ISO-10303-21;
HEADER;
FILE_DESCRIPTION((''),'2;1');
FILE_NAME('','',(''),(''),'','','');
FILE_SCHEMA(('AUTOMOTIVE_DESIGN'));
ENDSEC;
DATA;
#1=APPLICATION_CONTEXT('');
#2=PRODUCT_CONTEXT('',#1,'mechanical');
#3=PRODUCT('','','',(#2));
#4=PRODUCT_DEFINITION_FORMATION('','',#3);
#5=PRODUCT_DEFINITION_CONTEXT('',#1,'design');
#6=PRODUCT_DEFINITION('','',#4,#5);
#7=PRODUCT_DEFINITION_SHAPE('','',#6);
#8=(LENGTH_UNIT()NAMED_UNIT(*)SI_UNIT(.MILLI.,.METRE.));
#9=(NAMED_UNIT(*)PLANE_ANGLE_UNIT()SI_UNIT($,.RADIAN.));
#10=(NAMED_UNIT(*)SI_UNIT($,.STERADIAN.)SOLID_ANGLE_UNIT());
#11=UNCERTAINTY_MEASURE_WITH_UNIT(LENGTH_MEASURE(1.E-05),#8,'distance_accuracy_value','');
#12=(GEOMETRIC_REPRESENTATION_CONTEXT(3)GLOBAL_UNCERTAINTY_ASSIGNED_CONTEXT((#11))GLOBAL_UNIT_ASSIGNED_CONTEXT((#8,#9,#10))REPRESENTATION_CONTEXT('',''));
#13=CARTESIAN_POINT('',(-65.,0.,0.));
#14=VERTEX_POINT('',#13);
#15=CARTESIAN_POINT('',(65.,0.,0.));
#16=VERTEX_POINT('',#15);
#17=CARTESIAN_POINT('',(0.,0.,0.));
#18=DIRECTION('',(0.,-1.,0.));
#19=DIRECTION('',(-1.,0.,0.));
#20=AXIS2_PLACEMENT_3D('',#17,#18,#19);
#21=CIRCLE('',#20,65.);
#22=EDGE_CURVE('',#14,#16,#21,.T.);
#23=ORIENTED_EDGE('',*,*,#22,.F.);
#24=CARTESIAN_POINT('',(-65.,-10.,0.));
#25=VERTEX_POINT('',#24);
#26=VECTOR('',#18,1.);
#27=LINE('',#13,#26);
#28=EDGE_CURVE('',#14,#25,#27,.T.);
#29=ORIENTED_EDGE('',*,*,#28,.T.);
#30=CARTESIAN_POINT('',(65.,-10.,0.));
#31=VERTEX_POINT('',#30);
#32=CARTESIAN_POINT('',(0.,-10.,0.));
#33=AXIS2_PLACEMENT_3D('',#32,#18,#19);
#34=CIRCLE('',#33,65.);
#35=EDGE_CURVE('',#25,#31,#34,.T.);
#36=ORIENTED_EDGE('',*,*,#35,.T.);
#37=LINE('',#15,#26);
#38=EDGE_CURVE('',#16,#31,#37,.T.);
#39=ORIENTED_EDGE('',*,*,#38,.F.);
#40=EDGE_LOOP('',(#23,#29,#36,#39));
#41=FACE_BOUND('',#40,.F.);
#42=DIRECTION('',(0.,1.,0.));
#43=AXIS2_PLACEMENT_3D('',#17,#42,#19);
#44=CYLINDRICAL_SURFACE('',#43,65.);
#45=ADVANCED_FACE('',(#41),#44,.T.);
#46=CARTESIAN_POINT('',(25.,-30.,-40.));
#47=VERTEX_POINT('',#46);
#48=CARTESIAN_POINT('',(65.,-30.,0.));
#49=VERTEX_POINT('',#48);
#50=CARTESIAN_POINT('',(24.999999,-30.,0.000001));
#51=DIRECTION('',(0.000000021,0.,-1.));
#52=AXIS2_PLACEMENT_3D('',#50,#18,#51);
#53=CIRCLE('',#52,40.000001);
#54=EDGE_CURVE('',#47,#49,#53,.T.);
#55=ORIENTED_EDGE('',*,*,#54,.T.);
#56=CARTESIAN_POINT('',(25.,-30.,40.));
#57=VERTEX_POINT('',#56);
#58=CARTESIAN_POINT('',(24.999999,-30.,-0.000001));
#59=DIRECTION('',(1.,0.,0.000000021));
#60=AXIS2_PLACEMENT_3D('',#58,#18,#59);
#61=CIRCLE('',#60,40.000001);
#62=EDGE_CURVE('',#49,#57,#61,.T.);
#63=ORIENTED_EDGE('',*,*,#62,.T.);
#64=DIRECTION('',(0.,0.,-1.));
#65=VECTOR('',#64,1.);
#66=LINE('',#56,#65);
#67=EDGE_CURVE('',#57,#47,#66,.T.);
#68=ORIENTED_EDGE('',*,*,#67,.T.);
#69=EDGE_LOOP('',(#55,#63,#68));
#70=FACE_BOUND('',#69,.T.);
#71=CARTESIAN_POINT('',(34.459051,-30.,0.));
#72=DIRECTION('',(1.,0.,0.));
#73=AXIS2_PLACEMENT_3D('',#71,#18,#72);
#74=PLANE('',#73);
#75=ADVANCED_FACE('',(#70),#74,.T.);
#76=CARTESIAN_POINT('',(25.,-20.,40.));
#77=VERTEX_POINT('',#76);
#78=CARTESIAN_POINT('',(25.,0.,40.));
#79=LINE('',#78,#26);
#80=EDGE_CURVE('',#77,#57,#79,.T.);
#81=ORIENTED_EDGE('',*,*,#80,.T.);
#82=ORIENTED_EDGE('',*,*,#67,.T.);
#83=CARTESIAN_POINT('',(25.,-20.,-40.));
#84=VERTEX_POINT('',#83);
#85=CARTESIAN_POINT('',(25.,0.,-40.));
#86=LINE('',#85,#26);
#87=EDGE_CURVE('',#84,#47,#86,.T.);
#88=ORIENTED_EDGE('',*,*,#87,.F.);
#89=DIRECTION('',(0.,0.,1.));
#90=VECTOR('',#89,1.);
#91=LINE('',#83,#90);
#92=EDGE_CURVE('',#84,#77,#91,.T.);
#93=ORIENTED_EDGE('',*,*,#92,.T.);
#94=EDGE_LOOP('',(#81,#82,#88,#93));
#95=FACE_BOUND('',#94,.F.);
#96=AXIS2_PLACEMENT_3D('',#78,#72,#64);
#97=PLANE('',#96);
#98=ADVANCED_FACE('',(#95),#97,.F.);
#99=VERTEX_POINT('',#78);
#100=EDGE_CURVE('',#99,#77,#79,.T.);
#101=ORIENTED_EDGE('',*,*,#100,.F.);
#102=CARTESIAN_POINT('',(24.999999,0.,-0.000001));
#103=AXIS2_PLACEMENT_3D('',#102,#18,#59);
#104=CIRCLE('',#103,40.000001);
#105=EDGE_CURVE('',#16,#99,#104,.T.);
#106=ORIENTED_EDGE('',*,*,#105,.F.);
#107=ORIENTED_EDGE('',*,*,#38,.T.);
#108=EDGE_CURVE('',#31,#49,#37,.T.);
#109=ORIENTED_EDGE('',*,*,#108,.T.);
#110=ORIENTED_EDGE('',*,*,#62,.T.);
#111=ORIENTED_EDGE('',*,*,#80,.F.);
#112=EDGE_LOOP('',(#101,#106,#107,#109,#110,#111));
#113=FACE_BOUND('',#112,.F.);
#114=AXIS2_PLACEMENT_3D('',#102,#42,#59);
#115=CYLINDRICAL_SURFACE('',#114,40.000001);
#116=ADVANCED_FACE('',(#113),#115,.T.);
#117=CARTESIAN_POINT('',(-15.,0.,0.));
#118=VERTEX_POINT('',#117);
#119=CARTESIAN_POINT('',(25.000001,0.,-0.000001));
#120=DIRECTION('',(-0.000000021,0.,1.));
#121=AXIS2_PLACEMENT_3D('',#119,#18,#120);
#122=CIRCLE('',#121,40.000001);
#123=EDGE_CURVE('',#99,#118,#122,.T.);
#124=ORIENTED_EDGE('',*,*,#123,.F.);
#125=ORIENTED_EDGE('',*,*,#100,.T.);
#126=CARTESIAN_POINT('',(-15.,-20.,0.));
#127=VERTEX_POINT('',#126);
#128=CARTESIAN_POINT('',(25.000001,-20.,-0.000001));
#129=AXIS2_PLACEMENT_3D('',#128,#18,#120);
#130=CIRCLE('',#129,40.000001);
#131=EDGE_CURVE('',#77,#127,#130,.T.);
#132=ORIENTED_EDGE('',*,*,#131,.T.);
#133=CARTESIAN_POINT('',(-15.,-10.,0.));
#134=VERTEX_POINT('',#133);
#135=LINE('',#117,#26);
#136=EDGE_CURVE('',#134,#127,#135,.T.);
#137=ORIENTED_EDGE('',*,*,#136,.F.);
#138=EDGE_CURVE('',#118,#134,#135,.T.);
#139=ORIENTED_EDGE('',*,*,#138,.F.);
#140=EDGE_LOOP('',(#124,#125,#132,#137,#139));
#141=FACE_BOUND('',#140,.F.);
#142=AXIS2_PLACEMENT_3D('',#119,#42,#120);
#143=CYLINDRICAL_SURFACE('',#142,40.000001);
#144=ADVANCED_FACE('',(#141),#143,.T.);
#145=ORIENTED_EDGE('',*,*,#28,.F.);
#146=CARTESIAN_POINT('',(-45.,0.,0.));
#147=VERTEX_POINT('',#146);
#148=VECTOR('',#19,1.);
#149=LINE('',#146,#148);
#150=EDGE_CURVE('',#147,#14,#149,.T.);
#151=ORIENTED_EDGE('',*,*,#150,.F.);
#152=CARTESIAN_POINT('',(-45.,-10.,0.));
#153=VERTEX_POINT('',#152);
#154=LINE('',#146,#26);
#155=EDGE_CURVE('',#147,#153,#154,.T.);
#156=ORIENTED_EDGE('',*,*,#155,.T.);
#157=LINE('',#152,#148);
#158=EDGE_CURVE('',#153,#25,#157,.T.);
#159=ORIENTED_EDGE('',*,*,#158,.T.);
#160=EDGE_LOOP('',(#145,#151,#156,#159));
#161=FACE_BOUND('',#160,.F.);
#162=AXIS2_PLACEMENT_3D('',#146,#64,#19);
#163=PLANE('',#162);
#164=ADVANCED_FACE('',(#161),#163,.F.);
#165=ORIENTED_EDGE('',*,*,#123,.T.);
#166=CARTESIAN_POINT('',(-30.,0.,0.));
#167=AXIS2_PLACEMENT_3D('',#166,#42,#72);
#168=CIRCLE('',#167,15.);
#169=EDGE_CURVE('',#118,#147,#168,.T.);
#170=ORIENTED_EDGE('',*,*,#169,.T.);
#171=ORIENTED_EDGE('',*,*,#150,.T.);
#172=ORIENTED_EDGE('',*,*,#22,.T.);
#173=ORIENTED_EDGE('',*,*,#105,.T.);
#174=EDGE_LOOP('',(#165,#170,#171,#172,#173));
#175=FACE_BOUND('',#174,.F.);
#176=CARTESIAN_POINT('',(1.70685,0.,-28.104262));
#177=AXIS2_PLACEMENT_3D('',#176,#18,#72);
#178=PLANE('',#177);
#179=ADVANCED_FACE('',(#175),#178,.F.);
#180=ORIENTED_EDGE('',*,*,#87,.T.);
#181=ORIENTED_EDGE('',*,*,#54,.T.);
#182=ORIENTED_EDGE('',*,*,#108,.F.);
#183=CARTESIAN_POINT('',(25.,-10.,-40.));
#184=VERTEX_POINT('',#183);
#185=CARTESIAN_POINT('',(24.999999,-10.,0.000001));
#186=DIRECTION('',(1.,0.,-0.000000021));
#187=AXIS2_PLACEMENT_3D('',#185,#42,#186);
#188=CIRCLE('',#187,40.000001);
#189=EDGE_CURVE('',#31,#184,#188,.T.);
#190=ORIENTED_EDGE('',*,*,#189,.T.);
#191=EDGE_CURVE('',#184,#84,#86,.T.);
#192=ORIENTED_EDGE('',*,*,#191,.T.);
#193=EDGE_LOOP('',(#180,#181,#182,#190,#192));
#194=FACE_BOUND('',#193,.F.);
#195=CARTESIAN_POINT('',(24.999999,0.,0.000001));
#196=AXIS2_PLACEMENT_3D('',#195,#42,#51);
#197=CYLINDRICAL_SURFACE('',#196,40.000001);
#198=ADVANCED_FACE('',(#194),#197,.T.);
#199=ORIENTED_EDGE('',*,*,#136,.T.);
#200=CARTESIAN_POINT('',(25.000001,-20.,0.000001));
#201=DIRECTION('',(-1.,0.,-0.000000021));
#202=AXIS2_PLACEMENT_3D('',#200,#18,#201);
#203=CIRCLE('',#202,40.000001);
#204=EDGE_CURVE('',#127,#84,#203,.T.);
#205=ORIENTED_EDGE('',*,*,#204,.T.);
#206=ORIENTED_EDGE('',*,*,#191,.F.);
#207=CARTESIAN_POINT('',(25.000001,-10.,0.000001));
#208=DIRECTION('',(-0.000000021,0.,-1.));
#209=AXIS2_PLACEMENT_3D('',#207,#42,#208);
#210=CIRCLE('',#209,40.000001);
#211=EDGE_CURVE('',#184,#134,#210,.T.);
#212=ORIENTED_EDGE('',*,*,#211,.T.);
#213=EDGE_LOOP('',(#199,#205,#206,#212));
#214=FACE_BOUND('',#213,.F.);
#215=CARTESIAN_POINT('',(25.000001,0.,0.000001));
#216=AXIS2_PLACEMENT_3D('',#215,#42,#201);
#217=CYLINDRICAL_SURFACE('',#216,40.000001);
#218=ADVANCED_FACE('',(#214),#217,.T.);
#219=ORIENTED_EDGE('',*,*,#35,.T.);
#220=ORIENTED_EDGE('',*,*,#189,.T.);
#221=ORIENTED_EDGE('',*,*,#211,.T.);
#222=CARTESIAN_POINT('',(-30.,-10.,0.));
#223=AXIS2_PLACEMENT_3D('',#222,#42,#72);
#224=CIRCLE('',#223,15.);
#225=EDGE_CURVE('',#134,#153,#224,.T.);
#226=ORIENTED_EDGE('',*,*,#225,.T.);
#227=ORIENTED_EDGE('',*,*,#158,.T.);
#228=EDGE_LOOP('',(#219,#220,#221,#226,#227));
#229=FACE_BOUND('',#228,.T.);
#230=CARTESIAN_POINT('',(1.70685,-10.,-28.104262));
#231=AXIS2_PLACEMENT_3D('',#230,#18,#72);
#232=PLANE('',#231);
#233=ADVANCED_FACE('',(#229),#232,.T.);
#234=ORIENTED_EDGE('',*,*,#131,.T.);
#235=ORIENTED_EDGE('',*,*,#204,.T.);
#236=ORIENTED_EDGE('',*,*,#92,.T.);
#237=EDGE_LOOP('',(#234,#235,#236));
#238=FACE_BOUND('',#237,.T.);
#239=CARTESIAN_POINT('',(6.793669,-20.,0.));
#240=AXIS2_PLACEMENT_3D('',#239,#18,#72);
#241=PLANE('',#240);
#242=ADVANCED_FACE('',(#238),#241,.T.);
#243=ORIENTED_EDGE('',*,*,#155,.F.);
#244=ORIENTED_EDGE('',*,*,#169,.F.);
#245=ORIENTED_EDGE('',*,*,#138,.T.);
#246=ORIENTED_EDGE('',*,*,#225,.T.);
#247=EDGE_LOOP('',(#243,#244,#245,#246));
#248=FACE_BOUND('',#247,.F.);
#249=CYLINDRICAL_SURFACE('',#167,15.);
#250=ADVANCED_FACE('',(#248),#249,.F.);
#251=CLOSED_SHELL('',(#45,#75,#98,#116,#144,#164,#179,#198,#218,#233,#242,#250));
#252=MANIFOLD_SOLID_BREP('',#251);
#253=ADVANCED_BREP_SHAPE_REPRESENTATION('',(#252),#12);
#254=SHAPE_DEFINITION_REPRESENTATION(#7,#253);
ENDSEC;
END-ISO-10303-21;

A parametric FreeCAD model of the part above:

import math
import FreeCAD as App
import Part
import Sketcher

doc = App.newDocument("Part")
body = doc.addObject("PartDesign::Body", "Body")

# Sketch on XZ plane
sketch1 = body.newObject("Sketcher::SketchObject", "Sketch")
sketch1.AttachmentSupport = (doc.getObject("XZ_Plane"), [""])
sketch1.MapMode = "FlatFace"
sketch1.addGeometry([
    Part.ArcOfCircle(Part.Circle(App.Vector(25, 0, 0), App.Vector(0, 0, 1), 40), math.radians(-90), math.radians(0)),
    Part.ArcOfCircle(Part.Circle(App.Vector(25, 0, 0), App.Vector(0, 0, 1), 40), math.radians(0), math.radians(90)),
    Part.LineSegment(App.Vector(25, 40, 0), App.Vector(25, -40, 0)),
], False)
sketch1.addConstraint([
    Sketcher.Constraint("Tangent", 0, 2, 1, 1),
    Sketcher.Constraint("Coincident", 1, 2, 2, 1),
    Sketcher.Constraint("Coincident", 2, 2, 0, 1),
    Sketcher.Constraint("Vertical", 2),
    Sketcher.Constraint("Equal", 0, 1),
    Sketcher.Constraint("PointOnObject", 0, 3, -1),
    Sketcher.Constraint("PointOnObject", 0, 2, -1),
    Sketcher.Constraint("Vertical", 0, 3, 1, 2),
    Sketcher.Constraint("Radius", 0, 40.000001),
    Sketcher.Constraint("DistanceX", -1, 1, 0, 3, 24.999999),
])
pad1 = body.newObject("PartDesign::Pad", "Pad")
pad1.Profile = sketch1
pad1.Length = 30

# Sketch on XZ plane
sketch2 = body.newObject("Sketcher::SketchObject", "Sketch001")
sketch2.AttachmentSupport = (doc.getObject("XZ_Plane"), [""])
sketch2.MapMode = "FlatFace"
sketch2.addGeometry([
    Part.ArcOfCircle(Part.Circle(App.Vector(25, 0, 0), App.Vector(0, 0, 1), 40), math.radians(90), math.radians(180)),
    Part.ArcOfCircle(Part.Circle(App.Vector(25, 0, 0), App.Vector(0, 0, 1), 40), math.radians(-180), math.radians(-90)),
    Part.LineSegment(App.Vector(25, -40, 0), App.Vector(25, 40, 0)),
], False)
sketch2.addConstraint([
    Sketcher.Constraint("Tangent", 0, 2, 1, 1),
    Sketcher.Constraint("Coincident", 1, 2, 2, 1),
    Sketcher.Constraint("Coincident", 2, 2, 0, 1),
    Sketcher.Constraint("Vertical", 2),
    Sketcher.Constraint("Equal", 0, 1),
    Sketcher.Constraint("PointOnObject", 0, 3, -1),
    Sketcher.Constraint("PointOnObject", 0, 2, -1),
    Sketcher.Constraint("Vertical", 0, 3, 1, 2),
    Sketcher.Constraint("Radius", 0, 40.000001),
    Sketcher.Constraint("DistanceX", -1, 1, 0, 3, 25.000001),
])
pad2 = body.newObject("PartDesign::Pad", "Pad001")
pad2.Profile = sketch2
pad2.Length = 20

# Sketch on XZ plane
sketch3 = body.newObject("Sketcher::SketchObject", "Sketch002")
sketch3.AttachmentSupport = (doc.getObject("XZ_Plane"), [""])
sketch3.MapMode = "FlatFace"
sketch3.addGeometry([
    Part.LineSegment(App.Vector(-45, 0, 0), App.Vector(-65, 0, 0)),  # 0
    Part.ArcOfCircle(Part.Circle(App.Vector(0, 0, 0), App.Vector(0, 0, 1), 65), math.radians(180), math.radians(360)),  # 1
    Part.ArcOfCircle(Part.Circle(App.Vector(25, 0, 0), App.Vector(0, 0, 1), 40), math.radians(-90), math.radians(0)),  # 2
    Part.ArcOfCircle(Part.Circle(App.Vector(25, 0, 0), App.Vector(0, 0, 1), 40), math.radians(-180), math.radians(-90)),  # 3
    Part.ArcOfCircle(Part.Circle(App.Vector(-30, 0, 0), App.Vector(0, 0, 1), 15), math.radians(180), math.radians(360)),  # 4
], False)
sketch3.addConstraint([
    Sketcher.Constraint("Coincident", 0, 2, 1, 1),
    Sketcher.Constraint("Tangent", 1, 2, 2, 2),
    Sketcher.Constraint("Tangent", 2, 1, 3, 2),
    Sketcher.Constraint("Tangent", 3, 1, 4, 2),
    Sketcher.Constraint("Coincident", 4, 1, 0, 1),
    Sketcher.Constraint("Horizontal", 0),
    Sketcher.Constraint("Coincident", 1, 3, -1, 1),
    Sketcher.Constraint("Equal", 2, 3),
    Sketcher.Constraint("PointOnObject", 2, 3, -1),
    Sketcher.Constraint("PointOnObject", 4, 3, -1),
    Sketcher.Constraint("PointOnObject", 0, 2, -1),
    Sketcher.Constraint("Vertical", 3, 3, 2, 1),
    Sketcher.Constraint("Radius", 1, 65.0),
    Sketcher.Constraint("Radius", 2, 40.000001),
    Sketcher.Constraint("Radius", 4, 15.0),
])
pad3 = body.newObject("PartDesign::Pad", "Pad002")
pad3.Profile = sketch3
pad3.Length = 10

doc.recompute()
